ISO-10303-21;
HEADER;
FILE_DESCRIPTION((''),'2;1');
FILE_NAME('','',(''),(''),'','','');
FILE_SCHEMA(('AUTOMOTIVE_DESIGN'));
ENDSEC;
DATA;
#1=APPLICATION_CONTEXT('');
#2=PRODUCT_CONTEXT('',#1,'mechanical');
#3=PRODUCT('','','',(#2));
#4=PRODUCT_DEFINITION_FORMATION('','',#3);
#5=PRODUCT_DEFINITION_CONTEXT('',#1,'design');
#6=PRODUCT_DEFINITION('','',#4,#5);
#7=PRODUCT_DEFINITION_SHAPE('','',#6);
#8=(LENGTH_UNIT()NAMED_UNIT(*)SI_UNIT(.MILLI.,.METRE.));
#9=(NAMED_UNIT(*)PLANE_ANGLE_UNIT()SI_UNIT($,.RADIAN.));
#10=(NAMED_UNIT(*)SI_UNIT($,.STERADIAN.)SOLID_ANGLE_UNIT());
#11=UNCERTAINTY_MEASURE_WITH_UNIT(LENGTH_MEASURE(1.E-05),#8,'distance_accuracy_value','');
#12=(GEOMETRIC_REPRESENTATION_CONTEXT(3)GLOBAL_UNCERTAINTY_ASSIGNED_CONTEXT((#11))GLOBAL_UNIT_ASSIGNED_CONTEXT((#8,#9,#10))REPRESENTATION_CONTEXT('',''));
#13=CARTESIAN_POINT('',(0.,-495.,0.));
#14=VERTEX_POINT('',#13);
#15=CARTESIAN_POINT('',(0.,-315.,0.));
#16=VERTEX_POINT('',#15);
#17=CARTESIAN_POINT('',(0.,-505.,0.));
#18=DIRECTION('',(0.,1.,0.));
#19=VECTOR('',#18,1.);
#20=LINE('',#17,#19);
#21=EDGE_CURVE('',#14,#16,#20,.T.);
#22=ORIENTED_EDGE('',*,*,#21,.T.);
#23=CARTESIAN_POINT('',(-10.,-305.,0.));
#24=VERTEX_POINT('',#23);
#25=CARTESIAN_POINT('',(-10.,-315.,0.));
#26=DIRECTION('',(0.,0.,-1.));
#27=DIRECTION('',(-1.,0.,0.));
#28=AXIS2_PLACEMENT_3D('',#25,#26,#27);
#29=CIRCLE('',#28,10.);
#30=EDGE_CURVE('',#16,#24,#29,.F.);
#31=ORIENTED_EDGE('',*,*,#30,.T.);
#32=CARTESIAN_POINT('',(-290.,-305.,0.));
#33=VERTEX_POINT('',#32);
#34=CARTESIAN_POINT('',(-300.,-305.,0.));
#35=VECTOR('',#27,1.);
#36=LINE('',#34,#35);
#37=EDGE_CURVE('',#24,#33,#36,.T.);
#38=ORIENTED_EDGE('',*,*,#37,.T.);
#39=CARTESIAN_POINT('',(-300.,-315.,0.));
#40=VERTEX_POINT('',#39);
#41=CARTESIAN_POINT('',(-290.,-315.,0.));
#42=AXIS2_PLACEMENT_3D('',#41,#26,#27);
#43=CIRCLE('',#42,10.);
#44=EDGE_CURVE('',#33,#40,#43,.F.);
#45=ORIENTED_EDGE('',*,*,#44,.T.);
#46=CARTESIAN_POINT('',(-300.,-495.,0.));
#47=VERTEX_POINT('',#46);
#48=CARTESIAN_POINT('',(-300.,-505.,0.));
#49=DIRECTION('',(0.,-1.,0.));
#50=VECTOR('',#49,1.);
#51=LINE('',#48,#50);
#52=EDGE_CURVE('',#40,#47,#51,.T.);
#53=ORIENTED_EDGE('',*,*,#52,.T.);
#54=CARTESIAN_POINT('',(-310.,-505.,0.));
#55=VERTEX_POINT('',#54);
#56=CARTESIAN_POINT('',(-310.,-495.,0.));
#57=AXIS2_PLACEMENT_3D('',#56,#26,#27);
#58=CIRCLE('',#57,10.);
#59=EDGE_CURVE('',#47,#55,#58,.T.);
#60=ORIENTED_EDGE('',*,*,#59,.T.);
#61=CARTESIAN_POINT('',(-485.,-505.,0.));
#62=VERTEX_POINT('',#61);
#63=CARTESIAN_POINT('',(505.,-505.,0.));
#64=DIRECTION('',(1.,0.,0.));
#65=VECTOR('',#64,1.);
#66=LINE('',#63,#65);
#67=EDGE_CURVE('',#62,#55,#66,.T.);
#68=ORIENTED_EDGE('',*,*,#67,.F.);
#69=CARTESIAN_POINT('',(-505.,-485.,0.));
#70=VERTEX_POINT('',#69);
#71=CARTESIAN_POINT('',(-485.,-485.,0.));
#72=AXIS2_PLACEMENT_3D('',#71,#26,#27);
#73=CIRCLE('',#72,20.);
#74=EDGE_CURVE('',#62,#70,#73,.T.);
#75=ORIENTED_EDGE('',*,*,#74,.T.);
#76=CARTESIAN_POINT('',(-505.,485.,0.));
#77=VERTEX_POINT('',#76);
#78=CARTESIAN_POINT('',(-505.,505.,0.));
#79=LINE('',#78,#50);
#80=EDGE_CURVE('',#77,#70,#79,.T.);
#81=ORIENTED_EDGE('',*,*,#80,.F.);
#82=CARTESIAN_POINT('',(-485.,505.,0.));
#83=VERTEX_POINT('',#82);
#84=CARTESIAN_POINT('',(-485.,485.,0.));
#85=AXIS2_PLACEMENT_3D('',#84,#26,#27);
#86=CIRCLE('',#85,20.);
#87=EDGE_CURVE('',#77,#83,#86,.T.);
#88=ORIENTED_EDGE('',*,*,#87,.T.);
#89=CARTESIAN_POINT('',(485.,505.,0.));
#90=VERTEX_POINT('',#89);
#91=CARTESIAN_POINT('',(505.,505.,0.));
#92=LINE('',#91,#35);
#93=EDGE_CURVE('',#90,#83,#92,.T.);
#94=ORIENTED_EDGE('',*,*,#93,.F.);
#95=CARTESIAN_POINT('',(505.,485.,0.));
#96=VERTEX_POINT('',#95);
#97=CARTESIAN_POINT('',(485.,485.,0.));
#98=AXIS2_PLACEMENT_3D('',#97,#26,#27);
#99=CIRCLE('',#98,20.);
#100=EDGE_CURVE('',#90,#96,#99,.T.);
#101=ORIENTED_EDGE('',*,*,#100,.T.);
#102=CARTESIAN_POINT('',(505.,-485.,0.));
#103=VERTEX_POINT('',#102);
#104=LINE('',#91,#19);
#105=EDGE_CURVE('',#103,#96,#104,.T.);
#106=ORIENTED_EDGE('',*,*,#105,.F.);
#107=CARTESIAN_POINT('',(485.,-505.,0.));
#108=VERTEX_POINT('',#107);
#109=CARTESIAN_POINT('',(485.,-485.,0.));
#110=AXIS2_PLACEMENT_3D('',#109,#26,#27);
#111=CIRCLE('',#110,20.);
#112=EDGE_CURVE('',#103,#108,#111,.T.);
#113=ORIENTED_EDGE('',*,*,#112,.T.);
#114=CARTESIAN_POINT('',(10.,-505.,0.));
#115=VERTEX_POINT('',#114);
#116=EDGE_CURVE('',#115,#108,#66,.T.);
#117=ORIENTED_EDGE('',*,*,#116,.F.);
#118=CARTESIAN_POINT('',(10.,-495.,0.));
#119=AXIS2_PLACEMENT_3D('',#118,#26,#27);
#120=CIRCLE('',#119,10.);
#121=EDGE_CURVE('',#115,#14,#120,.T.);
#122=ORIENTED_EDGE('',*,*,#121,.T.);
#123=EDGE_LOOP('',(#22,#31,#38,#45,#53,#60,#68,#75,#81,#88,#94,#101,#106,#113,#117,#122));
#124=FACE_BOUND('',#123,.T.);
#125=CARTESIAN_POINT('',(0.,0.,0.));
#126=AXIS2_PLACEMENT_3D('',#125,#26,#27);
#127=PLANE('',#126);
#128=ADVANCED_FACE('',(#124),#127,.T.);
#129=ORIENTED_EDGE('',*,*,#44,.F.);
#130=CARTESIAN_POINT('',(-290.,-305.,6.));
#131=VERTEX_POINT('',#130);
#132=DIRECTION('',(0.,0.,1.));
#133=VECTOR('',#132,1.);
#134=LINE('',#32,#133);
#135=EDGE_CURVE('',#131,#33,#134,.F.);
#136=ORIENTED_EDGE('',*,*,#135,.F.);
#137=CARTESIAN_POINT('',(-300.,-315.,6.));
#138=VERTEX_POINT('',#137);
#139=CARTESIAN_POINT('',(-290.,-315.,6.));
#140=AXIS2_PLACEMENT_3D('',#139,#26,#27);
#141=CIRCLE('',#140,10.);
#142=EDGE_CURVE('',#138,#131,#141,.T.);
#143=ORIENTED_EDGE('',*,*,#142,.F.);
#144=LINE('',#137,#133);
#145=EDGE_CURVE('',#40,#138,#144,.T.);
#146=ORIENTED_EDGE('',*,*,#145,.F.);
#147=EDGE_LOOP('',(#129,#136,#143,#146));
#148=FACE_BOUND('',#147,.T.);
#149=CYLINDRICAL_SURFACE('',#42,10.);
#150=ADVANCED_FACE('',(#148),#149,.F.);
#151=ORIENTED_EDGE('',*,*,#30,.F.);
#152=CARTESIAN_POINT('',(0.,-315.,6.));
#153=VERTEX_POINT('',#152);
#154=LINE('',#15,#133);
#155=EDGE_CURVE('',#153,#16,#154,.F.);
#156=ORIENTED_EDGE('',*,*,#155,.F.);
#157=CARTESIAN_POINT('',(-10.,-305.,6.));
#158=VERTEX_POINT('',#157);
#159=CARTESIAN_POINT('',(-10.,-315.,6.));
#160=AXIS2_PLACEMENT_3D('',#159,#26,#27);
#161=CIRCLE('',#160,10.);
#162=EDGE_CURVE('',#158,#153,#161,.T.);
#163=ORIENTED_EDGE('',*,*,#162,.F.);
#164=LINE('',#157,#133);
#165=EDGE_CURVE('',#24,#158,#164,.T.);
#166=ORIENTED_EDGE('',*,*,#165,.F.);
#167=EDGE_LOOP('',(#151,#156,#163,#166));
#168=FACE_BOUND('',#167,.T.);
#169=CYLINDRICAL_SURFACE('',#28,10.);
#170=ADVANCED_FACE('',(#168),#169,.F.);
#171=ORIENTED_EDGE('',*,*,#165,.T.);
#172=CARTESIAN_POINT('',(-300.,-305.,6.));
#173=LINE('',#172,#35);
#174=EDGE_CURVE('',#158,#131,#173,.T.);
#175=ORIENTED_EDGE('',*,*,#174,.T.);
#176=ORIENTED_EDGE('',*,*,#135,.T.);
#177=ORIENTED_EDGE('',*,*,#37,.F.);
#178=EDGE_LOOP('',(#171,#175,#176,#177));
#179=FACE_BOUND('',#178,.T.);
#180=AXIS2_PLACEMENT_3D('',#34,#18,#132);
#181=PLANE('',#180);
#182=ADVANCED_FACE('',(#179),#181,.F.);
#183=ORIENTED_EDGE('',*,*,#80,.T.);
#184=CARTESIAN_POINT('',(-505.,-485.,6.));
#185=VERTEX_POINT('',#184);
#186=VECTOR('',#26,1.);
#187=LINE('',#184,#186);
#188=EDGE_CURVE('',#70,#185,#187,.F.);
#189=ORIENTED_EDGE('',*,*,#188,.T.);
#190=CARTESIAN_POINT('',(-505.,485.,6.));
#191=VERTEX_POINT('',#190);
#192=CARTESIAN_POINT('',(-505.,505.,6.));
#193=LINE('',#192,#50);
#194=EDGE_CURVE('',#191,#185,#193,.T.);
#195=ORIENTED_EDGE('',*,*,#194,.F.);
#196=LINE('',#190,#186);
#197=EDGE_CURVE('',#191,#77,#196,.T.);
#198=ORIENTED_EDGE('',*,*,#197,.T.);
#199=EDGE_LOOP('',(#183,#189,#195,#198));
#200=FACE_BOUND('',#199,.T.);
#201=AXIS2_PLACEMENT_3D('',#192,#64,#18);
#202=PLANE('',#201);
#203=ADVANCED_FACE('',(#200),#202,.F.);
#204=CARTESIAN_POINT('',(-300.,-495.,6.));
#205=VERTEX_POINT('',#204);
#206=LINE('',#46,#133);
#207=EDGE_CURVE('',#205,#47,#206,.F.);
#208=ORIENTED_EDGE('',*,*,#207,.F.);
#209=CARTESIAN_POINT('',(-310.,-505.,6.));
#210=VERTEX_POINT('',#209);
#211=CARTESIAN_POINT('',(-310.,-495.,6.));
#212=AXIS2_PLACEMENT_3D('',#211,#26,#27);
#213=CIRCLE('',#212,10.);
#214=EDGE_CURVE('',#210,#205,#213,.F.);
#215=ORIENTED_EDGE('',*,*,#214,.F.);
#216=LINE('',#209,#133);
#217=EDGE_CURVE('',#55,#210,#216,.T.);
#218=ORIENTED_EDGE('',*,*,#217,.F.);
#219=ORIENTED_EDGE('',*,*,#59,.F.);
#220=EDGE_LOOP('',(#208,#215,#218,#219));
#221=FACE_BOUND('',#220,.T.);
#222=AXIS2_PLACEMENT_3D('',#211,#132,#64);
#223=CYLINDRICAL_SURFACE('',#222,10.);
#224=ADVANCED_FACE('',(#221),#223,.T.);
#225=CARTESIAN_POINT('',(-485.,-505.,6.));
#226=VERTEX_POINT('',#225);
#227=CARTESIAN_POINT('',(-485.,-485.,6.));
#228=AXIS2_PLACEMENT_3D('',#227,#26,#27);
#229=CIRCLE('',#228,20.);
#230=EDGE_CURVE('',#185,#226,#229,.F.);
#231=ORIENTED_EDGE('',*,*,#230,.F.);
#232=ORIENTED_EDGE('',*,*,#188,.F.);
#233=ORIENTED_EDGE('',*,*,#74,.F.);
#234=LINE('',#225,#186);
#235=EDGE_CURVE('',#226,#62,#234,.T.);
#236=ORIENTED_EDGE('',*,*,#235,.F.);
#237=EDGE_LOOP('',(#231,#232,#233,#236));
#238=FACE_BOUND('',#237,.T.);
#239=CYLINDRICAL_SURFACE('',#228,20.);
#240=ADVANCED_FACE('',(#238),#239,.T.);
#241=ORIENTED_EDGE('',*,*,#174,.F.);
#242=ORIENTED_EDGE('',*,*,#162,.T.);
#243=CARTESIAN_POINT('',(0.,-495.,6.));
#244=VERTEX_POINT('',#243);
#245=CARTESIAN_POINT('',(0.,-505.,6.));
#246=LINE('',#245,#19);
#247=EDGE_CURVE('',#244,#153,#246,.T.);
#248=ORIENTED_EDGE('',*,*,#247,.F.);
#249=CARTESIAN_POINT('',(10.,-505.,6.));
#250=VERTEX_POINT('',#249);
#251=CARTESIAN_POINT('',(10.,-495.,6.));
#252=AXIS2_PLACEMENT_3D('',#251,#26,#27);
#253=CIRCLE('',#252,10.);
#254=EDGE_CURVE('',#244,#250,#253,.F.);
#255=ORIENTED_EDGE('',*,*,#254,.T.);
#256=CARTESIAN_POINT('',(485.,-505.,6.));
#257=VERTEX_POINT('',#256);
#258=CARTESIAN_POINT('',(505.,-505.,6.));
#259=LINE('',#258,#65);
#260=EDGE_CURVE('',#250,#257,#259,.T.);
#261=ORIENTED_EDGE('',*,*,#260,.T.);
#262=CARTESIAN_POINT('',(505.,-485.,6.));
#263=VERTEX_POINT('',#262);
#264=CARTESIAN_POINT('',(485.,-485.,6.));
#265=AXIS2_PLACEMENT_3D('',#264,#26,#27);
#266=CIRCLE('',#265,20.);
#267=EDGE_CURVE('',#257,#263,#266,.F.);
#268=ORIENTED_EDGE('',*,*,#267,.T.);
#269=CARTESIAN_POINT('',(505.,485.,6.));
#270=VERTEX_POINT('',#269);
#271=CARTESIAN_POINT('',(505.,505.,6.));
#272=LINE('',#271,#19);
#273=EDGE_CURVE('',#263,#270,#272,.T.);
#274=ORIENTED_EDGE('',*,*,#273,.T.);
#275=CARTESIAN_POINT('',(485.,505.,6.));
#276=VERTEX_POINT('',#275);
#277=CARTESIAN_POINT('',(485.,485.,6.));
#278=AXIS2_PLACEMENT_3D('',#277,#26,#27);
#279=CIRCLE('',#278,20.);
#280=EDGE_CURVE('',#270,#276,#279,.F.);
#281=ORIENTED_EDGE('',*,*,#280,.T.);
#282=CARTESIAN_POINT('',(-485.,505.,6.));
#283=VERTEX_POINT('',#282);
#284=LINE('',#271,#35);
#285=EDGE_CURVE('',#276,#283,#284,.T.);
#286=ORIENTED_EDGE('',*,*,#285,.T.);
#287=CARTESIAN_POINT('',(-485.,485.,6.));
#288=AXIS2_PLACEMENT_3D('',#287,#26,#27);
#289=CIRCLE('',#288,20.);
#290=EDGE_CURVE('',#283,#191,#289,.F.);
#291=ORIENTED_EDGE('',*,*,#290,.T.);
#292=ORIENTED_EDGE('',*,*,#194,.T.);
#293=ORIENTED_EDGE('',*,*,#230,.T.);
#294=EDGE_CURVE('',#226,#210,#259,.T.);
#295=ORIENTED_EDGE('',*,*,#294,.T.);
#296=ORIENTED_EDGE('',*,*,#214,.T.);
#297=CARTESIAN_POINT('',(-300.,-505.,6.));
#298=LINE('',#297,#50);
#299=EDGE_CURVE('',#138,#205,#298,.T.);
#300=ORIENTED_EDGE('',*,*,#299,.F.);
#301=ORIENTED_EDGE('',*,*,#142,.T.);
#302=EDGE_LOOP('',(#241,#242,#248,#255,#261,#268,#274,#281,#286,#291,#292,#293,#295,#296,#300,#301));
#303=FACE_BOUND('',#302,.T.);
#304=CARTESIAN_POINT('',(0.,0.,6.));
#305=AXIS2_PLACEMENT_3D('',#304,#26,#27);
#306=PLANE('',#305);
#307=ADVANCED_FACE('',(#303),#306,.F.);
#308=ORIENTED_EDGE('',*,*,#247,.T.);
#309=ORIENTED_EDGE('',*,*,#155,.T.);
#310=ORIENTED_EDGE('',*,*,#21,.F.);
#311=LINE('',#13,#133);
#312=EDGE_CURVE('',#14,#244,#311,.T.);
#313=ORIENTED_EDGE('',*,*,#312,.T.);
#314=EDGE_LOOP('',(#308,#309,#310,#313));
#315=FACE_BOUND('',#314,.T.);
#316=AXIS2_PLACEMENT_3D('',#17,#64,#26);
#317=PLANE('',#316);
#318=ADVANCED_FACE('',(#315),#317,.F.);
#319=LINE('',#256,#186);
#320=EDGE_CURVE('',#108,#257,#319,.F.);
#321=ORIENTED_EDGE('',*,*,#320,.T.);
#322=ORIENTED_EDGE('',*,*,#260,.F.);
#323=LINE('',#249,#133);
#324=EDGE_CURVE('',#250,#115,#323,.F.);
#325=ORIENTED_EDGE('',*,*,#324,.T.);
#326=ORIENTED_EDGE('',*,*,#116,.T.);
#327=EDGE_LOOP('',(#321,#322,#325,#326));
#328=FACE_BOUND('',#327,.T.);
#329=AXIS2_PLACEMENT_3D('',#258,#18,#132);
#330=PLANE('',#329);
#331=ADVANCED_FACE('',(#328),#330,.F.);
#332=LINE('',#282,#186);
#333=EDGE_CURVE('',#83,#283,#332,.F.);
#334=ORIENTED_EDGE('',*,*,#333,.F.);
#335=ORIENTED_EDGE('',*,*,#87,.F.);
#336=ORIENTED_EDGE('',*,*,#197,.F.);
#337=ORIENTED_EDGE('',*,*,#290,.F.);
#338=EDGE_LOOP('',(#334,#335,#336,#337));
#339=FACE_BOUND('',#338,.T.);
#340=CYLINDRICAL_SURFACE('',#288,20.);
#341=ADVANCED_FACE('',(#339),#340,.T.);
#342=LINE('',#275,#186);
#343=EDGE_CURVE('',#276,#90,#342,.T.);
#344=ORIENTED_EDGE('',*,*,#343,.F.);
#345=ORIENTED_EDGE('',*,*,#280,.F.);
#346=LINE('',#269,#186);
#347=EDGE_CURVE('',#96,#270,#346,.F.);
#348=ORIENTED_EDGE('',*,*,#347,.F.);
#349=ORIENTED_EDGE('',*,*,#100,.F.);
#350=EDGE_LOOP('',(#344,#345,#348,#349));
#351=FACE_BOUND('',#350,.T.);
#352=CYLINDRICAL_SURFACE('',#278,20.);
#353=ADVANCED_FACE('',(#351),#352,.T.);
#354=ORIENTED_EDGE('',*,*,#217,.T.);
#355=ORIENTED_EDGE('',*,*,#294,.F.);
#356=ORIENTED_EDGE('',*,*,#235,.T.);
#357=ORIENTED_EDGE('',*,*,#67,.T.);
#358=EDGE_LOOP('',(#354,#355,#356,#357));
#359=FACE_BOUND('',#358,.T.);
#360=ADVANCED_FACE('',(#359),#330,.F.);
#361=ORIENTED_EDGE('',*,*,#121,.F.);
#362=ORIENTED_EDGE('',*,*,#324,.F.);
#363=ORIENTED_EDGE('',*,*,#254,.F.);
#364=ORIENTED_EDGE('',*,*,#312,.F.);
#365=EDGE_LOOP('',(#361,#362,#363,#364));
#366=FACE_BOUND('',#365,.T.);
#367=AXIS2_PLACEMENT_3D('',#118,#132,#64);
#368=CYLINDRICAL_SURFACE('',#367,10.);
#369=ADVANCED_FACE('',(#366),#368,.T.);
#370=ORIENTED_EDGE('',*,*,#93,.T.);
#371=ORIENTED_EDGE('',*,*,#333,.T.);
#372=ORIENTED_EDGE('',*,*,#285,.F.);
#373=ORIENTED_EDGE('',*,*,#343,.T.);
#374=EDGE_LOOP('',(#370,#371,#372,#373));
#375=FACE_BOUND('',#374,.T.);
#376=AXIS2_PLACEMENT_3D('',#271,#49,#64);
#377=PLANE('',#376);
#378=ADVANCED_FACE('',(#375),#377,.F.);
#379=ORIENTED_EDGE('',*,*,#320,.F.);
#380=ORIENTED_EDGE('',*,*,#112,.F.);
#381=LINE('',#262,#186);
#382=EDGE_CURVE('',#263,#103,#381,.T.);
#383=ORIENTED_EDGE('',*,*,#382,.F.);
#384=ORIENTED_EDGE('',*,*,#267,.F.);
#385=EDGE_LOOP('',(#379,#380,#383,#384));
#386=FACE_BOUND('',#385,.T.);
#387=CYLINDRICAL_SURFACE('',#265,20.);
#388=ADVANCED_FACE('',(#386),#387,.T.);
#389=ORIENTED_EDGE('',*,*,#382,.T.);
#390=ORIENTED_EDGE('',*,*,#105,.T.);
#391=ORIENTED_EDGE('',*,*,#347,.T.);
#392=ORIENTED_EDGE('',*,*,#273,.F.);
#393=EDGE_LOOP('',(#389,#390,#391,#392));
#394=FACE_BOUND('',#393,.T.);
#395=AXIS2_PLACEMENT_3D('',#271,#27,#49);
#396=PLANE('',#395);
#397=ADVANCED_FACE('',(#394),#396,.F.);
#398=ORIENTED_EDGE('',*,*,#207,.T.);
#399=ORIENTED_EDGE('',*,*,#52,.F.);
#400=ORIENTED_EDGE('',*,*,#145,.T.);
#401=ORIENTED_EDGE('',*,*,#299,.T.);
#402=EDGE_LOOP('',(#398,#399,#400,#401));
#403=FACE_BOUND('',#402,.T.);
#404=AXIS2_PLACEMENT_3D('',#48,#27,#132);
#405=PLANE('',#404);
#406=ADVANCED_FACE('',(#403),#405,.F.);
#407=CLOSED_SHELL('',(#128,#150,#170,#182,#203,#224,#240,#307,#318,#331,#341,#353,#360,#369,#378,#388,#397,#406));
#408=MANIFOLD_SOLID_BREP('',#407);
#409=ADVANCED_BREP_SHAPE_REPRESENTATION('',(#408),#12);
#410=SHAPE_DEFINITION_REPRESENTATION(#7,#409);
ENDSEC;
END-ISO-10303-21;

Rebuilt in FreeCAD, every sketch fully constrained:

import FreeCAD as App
import Part
import Sketcher
from FreeCAD import Vector


def edges_at(feature, points):
    """Names of the edges that pass closest to the given points."""
    edges = feature.Shape.Edges
    near = lambda p: min(range(len(edges)), key=lambda i: edges[i].distToShape(Part.Vertex(*p))[0])
    return sorted({f"Edge{near(p) + 1}" for p in points})

doc = App.newDocument("Part")
body = doc.addObject("PartDesign::Body", "Body")

sketch1 = doc.addObject("Sketcher::SketchObject", "Sketch")
body.addObject(sketch1)
sketch1.AttachmentSupport = (doc.XY_Plane, [""])
sketch1.MapMode = "FlatFace"
sketch1.addGeometry(Part.LineSegment(Vector(-505, 505, 0), Vector(-505, -505, 0)), False)
sketch1.addGeometry(Part.LineSegment(Vector(-505, -505, 0), Vector(505, -505, 0)), False)
sketch1.addGeometry(Part.LineSegment(Vector(505, -505, 0), Vector(505, 505, 0)), False)
sketch1.addGeometry(Part.LineSegment(Vector(505, 505, 0), Vector(-505, 505, 0)), False)
sketch1.addConstraint(Sketcher.Constraint("Coincident", 0, 2, 1, 1))
sketch1.addConstraint(Sketcher.Constraint("Coincident", 1, 2, 2, 1))
sketch1.addConstraint(Sketcher.Constraint("Coincident", 2, 2, 3, 1))
sketch1.addConstraint(Sketcher.Constraint("Coincident", 3, 2, 0, 1))
sketch1.addConstraint(Sketcher.Constraint("Vertical", 0))
sketch1.addConstraint(Sketcher.Constraint("Horizontal", 1))
sketch1.addConstraint(Sketcher.Constraint("Vertical", 2))
sketch1.addConstraint(Sketcher.Constraint("Horizontal", 3))
sketch1.addConstraint(Sketcher.Constraint("Symmetric", 0, 2, 2, 2, -1, 1))
sketch1.addConstraint(Sketcher.Constraint("Equal", 3, 0))
sketch1.addConstraint(Sketcher.Constraint("DistanceX", 1, 1, 1, 2, 1010.0))
pad1 = doc.addObject("PartDesign::Pad", "Pad")
body.addObject(pad1)
pad1.Profile = sketch1
pad1.Length = 6

sketch2 = doc.addObject("Sketcher::SketchObject", "Sketch001")
body.addObject(sketch2)
sketch2.AttachmentSupport = (doc.XY_Plane, [""])
sketch2.MapMode = "FlatFace"
sketch2.AttachmentOffset = App.Placement(Vector(0, 0, 6), App.Rotation())
sketch2.addGeometry(Part.LineSegment(Vector(-300, -305, 0), Vector(-300, -505, 0)), False)
sketch2.addGeometry(Part.LineSegment(Vector(-300, -505, 0), Vector(0, -505, 0)), False)
sketch2.addGeometry(Part.LineSegment(Vector(0, -505, 0), Vector(0, -305, 0)), False)
sketch2.addGeometry(Part.LineSegment(Vector(0, -305, 0), Vector(-300, -305, 0)), False)
sketch2.addConstraint(Sketcher.Constraint("Coincident", 0, 2, 1, 1))
sketch2.addConstraint(Sketcher.Constraint("Coincident", 1, 2, 2, 1))
sketch2.addConstraint(Sketcher.Constraint("Coincident", 2, 2, 3, 1))
sketch2.addConstraint(Sketcher.Constraint("Coincident", 3, 2, 0, 1))
sketch2.addConstraint(Sketcher.Constraint("Vertical", 0))
sketch2.addConstraint(Sketcher.Constraint("Horizontal", 1))
sketch2.addConstraint(Sketcher.Constraint("Vertical", 2))
sketch2.addConstraint(Sketcher.Constraint("Horizontal", 3))
sketch2.addConstraint(Sketcher.Constraint("PointOnObject", 1, 2, -2))
sketch2.addConstraint(Sketcher.Constraint("DistanceX", 1, 1, 1, 2, 300.0))
sketch2.addConstraint(Sketcher.Constraint("DistanceY", 0, 2, 0, 1, 200.0))
sketch2.addConstraint(Sketcher.Constraint("DistanceY", 0, 2, -1, 1, 505.0))
pocket1 = doc.addObject("PartDesign::Pocket", "Pocket")
body.addObject(pocket1)
pocket1.Profile = sketch2
pocket1.Length = 6
doc.recompute()

fillet = doc.addObject("PartDesign::Fillet", "Fillet")
body.addObject(fillet)
fillet.Base = (pocket1, edges_at(pocket1, [
    (-505, 505, 3),
    (505, 505, 3),
    (505, -505, 3),
    (-505, -505, 3),
]))
fillet.Radius = 20
doc.recompute()

fillet2 = doc.addObject("PartDesign::Fillet", "Fillet001")
body.addObject(fillet2)
fillet2.Base = (fillet, edges_at(fillet, [
    (-300, -505, 3),
    (-300, -305, 3),
    (0, -305, 3),
    (0, -505, 3),
]))
fillet2.Radius = 10

doc.recompute()
